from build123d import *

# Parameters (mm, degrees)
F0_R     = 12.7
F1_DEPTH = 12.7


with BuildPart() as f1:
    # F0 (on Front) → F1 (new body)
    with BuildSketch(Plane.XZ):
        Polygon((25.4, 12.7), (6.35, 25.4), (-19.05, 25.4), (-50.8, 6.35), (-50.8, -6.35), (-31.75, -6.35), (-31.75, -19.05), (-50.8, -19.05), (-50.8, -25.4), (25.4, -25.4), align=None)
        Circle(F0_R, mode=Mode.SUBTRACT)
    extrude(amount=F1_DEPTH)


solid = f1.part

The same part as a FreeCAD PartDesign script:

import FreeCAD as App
import Part
import Sketcher

V = App.Vector
Q = App.Units.Quantity


def add_polygon(sketch, points):
    """Adds a closed chain of lines whose ends are joined by coincident constraints."""
    first, n = sketch.GeometryCount, len(points)
    for a, b in zip(points, points[1:] + points[:1]):
        sketch.addGeometry(Part.LineSegment(App.Vector(*a, 0), App.Vector(*b, 0)), False)
    for i in range(n):
        sketch.addConstraint(Sketcher.Constraint("Coincident", first + i, 2, first + (i + 1) % n, 1))

doc = App.newDocument("Part")
body = doc.addObject("PartDesign::Body", "Body")

# Sketch on XZ plane
sketch1 = body.newObject("Sketcher::SketchObject", "Sketch")
sketch1.AttachmentSupport = (doc.getObject("XZ_Plane"), [""])
sketch1.MapMode = "FlatFace"
add_polygon(sketch1, [(25, 13), (6, 25), (-19, 25), (-51, 6), (-51, -6), (-32, -6), (-32, -19), (-51, -19), (-51, -25), (25, -25)])  # lines 0-9
sketch1.addGeometry(Part.Circle(V(0, 0, 0), V(0, 0, 1), 13), False)  # 10
sketch1.addConstraint([
    Sketcher.Constraint("Horizontal", 1),
    Sketcher.Constraint("Vertical", 3),
    Sketcher.Constraint("Horizontal", 4),
    Sketcher.Constraint("Vertical", 5),
    Sketcher.Constraint("Horizontal", 6),
    Sketcher.Constraint("Vertical", 7),
    Sketcher.Constraint("Horizontal", 8),
    Sketcher.Constraint("Vertical", 9),
    Sketcher.Constraint("Coincident", 10, 3, -1, 1),
    Sketcher.Constraint("Vertical", 3, 2, 6, 2),
    Sketcher.Constraint("Equal", 3, 5),
    Sketcher.Constraint("Diameter", 10, Q("1 in")),
    Sketcher.Constraint("DistanceX", 1, 2, 1, 1, Q("1 in")),
    Sketcher.Constraint("DistanceX", 8, 1, 8, 2, Q("3 in")),
    Sketcher.Constraint("DistanceY", 3, 2, 3, 1, Q("0.5 in")),
    Sketcher.Constraint("DistanceY", 9, 1, 9, 2, Q("1.5 in")),
    Sketcher.Constraint("DistanceY", -1, 1, 0, 2, Q("1 in")),
    Sketcher.Constraint("DistanceX", 2, 2, -1, 1, Q("2 in")),
    Sketcher.Constraint("DistanceY", 7, 2, -1, 1, Q("1 in")),
    Sketcher.Constraint("DistanceX", 4, 1, 4, 2, Q("0.75 in")),
    Sketcher.Constraint("DistanceY", 7, 2, 7, 1, Q("0.25 in")),
    Sketcher.Constraint("DistanceX", 4, 2, 1, 2, Q("0.5 in")),
])
pad1 = body.newObject("PartDesign::Pad", "Pad")
pad1.Profile = sketch1
pad1.Length = Q("0.5 in")

doc.recompute()
